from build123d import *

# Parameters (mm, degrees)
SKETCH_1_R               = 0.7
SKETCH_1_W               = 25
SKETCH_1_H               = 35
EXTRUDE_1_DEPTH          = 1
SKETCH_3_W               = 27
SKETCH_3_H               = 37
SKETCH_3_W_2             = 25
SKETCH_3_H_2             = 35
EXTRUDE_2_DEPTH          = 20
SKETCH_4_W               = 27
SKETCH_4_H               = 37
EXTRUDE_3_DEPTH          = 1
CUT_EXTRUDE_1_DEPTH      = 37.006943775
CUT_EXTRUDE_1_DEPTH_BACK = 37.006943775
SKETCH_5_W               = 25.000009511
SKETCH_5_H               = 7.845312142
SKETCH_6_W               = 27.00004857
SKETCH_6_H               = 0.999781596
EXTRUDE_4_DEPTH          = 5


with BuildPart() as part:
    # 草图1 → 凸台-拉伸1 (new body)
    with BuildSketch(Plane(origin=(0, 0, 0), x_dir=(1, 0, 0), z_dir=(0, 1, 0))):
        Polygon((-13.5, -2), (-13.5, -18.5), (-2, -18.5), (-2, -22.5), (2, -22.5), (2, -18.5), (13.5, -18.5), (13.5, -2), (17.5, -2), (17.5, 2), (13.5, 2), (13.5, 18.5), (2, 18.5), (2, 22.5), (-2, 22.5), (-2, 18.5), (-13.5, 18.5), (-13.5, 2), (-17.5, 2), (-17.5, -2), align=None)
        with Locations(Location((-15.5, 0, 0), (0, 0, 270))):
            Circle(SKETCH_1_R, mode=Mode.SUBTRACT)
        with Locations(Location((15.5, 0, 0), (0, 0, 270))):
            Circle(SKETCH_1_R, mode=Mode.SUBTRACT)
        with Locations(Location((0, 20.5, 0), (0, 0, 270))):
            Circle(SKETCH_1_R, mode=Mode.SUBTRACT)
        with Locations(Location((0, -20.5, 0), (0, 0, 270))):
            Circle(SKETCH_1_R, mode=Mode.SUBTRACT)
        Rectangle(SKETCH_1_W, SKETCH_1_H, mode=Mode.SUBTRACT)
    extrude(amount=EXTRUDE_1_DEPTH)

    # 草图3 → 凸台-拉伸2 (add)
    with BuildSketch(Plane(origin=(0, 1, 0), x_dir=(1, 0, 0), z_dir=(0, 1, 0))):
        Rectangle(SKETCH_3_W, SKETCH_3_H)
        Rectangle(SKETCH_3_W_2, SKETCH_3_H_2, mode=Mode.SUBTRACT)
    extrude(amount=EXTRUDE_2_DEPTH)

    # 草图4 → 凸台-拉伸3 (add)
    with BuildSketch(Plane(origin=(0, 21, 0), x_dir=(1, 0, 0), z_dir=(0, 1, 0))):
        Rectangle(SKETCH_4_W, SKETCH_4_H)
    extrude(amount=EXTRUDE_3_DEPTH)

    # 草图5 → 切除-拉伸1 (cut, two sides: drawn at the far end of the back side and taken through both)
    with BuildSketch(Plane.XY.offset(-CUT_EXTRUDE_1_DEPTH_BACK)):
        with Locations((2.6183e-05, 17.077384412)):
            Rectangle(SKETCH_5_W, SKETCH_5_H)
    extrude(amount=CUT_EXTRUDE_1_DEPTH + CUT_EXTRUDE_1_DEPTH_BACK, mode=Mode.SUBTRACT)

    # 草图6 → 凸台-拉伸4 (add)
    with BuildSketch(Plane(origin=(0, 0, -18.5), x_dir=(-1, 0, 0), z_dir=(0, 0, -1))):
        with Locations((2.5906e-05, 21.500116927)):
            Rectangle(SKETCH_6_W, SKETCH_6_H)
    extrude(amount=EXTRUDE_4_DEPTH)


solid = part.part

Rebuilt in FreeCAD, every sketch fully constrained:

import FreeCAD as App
import Part
import Sketcher
Q = App.Units.Quantity


def add_polygon(sketch, points):
    """Adds a closed chain of lines whose ends are joined by coincident constraints."""
    first, n = sketch.GeometryCount, len(points)
    for a, b in zip(points, points[1:] + points[:1]):
        sketch.addGeometry(Part.LineSegment(App.Vector(*a, 0), App.Vector(*b, 0)), False)
    for i in range(n):
        sketch.addConstraint(Sketcher.Constraint("Coincident", first + i, 2, first + (i + 1) % n, 1))

doc = App.newDocument("Part")
body = doc.addObject("PartDesign::Body", "Body")

sketch1 = body.newObject("Sketcher::SketchObject", "Sketch")
sketch1.AttachmentSupport = (doc.getObject("XZ_Plane"), [""])
sketch1.MapMode = "FlatFace"
add_polygon(sketch1, [(-13.5, 2), (-13.5, 18.5), (-2, 18.5), (-2, 22.5), (2, 22.5), (2, 18.5), (13.5, 18.5), (13.5, 2), (17.5, 2), (17.5, -2), (13.5, -2), (13.5, -18.5), (2, -18.5), (2, -22.5), (-2, -22.5), (-2, -18.5), (-13.5, -18.5), (-13.5, -2), (-17.5, -2), (-17.5, 2)])
sketch1.addGeometry(Part.Circle(App.Vector(0, 20.5, 0), App.Vector(0, 0, 1), 0.7), False)
sketch1.addGeometry(Part.Circle(App.Vector(-15.5, 0, 0), App.Vector(0, 0, 1), 0.7), False)
add_polygon(sketch1, [(12.5, 17.5), (-12.5, 17.5), (-12.5, -17.5), (12.5, -17.5)])
sketch1.addGeometry(Part.Circle(App.Vector(15.5, 0, 0), App.Vector(0, 0, 1), 0.7), False)
sketch1.addGeometry(Part.Circle(App.Vector(0, -20.5, 0), App.Vector(0, 0, 1), 0.7), False)
sketch1.addConstraint([
    Sketcher.Constraint("Vertical", 0),
    Sketcher.Constraint("Horizontal", 1),
    Sketcher.Constraint("Vertical", 2),
    Sketcher.Constraint("Horizontal", 3),
    Sketcher.Constraint("Vertical", 4),
    Sketcher.Constraint("Horizontal", 5),
    Sketcher.Constraint("Vertical", 6),
    Sketcher.Constraint("Horizontal", 7),
    Sketcher.Constraint("Vertical", 8),
    Sketcher.Constraint("Horizontal", 9),
    Sketcher.Constraint("Vertical", 10),
    Sketcher.Constraint("Horizontal", 11),
    Sketcher.Constraint("Vertical", 12),
    Sketcher.Constraint("Horizontal", 13),
    Sketcher.Constraint("Vertical", 14),
    Sketcher.Constraint("Horizontal", 15),
    Sketcher.Constraint("Vertical", 16),
    Sketcher.Constraint("Horizontal", 17),
    Sketcher.Constraint("Vertical", 18),
    Sketcher.Constraint("Horizontal", 19),
    Sketcher.Constraint("Horizontal", 22),
    Sketcher.Constraint("Vertical", 23),
    Sketcher.Constraint("Horizontal", 24),
    Sketcher.Constraint("Vertical", 25),
    Sketcher.Constraint("Equal", 20, 21),
    Sketcher.Constraint("Equal", 21, 26),
    Sketcher.Constraint("Equal", 26, 27),
    Sketcher.Constraint("Symmetric", 21, 3, 26, 3, -1, 1),
    Sketcher.Constraint("Symmetric", 20, 3, 27, 3, -1, 1),
    Sketcher.Constraint("Symmetric", 0, 2, 10, 2, -1, 1),
    Sketcher.Constraint("Symmetric", 2, 2, 12, 2, -1, 1),
    Sketcher.Constraint("Symmetric", 4, 2, 14, 2, -1, 1),
    Sketcher.Constraint("Symmetric", 6, 2, 16, 2, -1, 1),
    Sketcher.Constraint("Symmetric", 8, 2, 18, 2, -1, 1),
    Sketcher.Constraint("Symmetric", 22, 2, 24, 2, -1, 1),
    Sketcher.Constraint("Symmetric", 1, 2, 4, 2, -2),
    Sketcher.Constraint("Symmetric", 9, 2, 16, 2, -2),
    Sketcher.Constraint("PointOnObject", 20, 3, -2),
    Sketcher.Constraint("PointOnObject", 21, 3, -1),
    Sketcher.Constraint("Equal", 3, 7),
    Sketcher.Constraint("Equal", 19, 2),
    Sketcher.Constraint("Equal", 4, 8),
    Sketcher.Constraint("Diameter", 20, Q("1.4 mm")),
    Sketcher.Constraint("DistanceX", 3, 1, 3, 2, Q("4 mm")),
    Sketcher.Constraint("DistanceX", 22, 2, 22, 1, Q("25 mm")),
    Sketcher.Constraint("DistanceY", 23, 2, 23, 1, Q("35 mm")),
    Sketcher.Constraint("DistanceX", 1, 1, 1, 2, Q("11.5 mm")),
    Sketcher.Constraint("DistanceY", 0, 1, 0, 2, Q("16.5 mm")),
    Sketcher.Constraint("DistanceX", 21, 3, 26, 3, Q("31 mm")),
    Sketcher.Constraint("DistanceY", 27, 3, 20, 3, Q("41 mm")),
])
pad1 = body.newObject("PartDesign::Pad", "Pad")
pad1.Profile = sketch1
pad1.Length = 1
pad1.Reversed = True

sketch2 = body.newObject("Sketcher::SketchObject", "Sketch001")
sketch2.AttachmentSupport = (doc.getObject("XZ_Plane"), [""])
sketch2.MapMode = "FlatFace"
sketch2.AttachmentOffset = App.Placement(App.Vector(0, 0, -1), App.Rotation())
add_polygon(sketch2, [(-14, -18), (-14, 18), (14, 18), (14, -18)])
add_polygon(sketch2, [(12, 18), (-12, 18), (-12, -18), (12, -18)])
sketch2.addConstraint([
    Sketcher.Constraint("Vertical", 0),
    Sketcher.Constraint("Horizontal", 1),
    Sketcher.Constraint("Vertical", 2),
    Sketcher.Constraint("Horizontal", 3),
    Sketcher.Constraint("Horizontal", 4),
    Sketcher.Constraint("Vertical", 5),
    Sketcher.Constraint("Horizontal", 6),
    Sketcher.Constraint("Vertical", 7),
    Sketcher.Constraint("Symmetric", 0, 2, 2, 2, -1, 1),
    Sketcher.Constraint("Symmetric", 4, 2, 6, 2, -1, 1),
    Sketcher.Constraint("DistanceX", 1, 1, 1, 2, Q("27 mm")),
    Sketcher.Constraint("DistanceX", 4, 2, 4, 1, Q("25 mm")),
    Sketcher.Constraint("DistanceY", 0, 1, 0, 2, Q("37 mm")),
    Sketcher.Constraint("DistanceY", 5, 2, 5, 1, Q("35 mm")),
])
pad2 = body.newObject("PartDesign::Pad", "Pad001")
pad2.Profile = sketch2
pad2.Length = 20
pad2.Reversed = True

sketch3 = body.newObject("Sketcher::SketchObject", "Sketch002")
sketch3.AttachmentSupport = (doc.getObject("XZ_Plane"), [""])
sketch3.MapMode = "FlatFace"
sketch3.AttachmentOffset = App.Placement(App.Vector(0, 0, -21), App.Rotation())
add_polygon(sketch3, [(-14, -18), (-14, 18), (14, 18), (14, -18)])
sketch3.addConstraint([
    Sketcher.Constraint("Vertical", 0),
    Sketcher.Constraint("Horizontal", 1),
    Sketcher.Constraint("Vertical", 2),
    Sketcher.Constraint("Horizontal", 3),
    Sketcher.Constraint("Symmetric", 0, 2, 2, 2, -1, 1),
    Sketcher.Constraint("DistanceX", 1, 1, 1, 2, Q("27 mm")),
    Sketcher.Constraint("DistanceY", 0, 1, 0, 2, Q("37 mm")),
])
pad3 = body.newObject("PartDesign::Pad", "Pad002")
pad3.Profile = sketch3
pad3.Length = 1
pad3.Reversed = True

sketch4 = body.newObject("Sketcher::SketchObject", "Sketch003")
sketch4.AttachmentSupport = (doc.getObject("XY_Plane"), [""])
sketch4.MapMode = "FlatFace"
add_polygon(sketch4, [(-12, 21), (-12, 13), (13, 13), (13, 21)])
sketch4.addConstraint([
    Sketcher.Constraint("Vertical", 0),
    Sketcher.Constraint("Horizontal", 1),
    Sketcher.Constraint("Vertical", 2),
    Sketcher.Constraint("Horizontal", 3),
    Sketcher.Constraint("DistanceX", 1, 1, 1, 2, Q("25.00001 mm")),
    Sketcher.Constraint("DistanceY", 0, 2, 0, 1, Q("7.845312 mm")),
    Sketcher.Constraint("DistanceX", 0, 2, -1, 1, Q("12.499979 mm")),
    Sketcher.Constraint("DistanceY", -1, 1, 0, 2, Q("13.154728 mm")),
])
pocket1 = body.newObject("PartDesign::Pocket", "Pocket")
pocket1.Profile = sketch4
pocket1.Type = "ThroughAll"
pocket1.Midplane = True

sketch5 = body.newObject("Sketcher::SketchObject", "Sketch004")
sketch5.AttachmentSupport = (doc.getObject("XY_Plane"), [""])
sketch5.MapMode = "FlatFace"
sketch5.AttachmentOffset = App.Placement(App.Vector(0, 0, -18.5), App.Rotation())
add_polygon(sketch5, [(13.5, 22), (13.5, 21), (-13.5, 21), (-13.5, 22)])
sketch5.addConstraint([
    Sketcher.Constraint("Vertical", 0),
    Sketcher.Constraint("Horizontal", 1),
    Sketcher.Constraint("Vertical", 2),
    Sketcher.Constraint("Horizontal", 3),
    Sketcher.Constraint("DistanceX", -1, 1, 0, 2, Q("13.499998 mm")),
    Sketcher.Constraint("DistanceX", 1, 2, 1, 1, Q("27.000049 mm")),
    Sketcher.Constraint("DistanceY", 0, 2, 0, 1, Q("0.999782 mm")),
    Sketcher.Constraint("DistanceY", -1, 1, 0, 2, Q("21.000226 mm")),
])
pad4 = body.newObject("PartDesign::Pad", "Pad003")
pad4.Profile = sketch5
pad4.Length = 5
pad4.Reversed = True

doc.recompute()
